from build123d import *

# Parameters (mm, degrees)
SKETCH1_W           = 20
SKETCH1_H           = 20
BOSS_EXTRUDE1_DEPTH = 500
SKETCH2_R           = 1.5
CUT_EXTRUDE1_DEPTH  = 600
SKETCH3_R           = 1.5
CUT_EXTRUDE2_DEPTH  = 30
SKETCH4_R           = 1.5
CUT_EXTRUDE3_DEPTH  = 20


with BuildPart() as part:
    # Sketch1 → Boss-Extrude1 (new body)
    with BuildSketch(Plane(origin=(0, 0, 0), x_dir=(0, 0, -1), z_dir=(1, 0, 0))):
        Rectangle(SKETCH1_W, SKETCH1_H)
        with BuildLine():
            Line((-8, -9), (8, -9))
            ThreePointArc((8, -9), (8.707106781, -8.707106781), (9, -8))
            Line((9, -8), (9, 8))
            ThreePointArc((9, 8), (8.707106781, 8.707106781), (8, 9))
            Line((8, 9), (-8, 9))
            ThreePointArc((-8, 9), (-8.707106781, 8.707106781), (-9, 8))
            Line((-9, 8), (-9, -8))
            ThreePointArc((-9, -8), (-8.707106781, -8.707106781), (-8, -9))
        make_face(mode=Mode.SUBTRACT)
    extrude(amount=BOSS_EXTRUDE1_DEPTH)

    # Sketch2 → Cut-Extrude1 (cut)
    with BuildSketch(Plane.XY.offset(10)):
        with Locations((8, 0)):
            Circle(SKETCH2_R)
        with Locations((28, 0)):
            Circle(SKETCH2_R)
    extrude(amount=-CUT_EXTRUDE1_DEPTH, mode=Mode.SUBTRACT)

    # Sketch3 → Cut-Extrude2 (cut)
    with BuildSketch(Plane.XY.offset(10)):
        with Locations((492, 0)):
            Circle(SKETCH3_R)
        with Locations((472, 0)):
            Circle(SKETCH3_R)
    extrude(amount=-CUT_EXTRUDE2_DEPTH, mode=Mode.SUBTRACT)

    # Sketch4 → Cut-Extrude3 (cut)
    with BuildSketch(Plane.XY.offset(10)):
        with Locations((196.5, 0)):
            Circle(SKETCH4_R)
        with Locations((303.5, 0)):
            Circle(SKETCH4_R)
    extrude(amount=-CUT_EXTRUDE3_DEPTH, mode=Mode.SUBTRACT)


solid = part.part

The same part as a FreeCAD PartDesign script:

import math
import FreeCAD as App
import Part
import Sketcher

V = App.Vector
Q = App.Units.Quantity


def add_polygon(sketch, points):
    """Adds a closed chain of lines whose ends are joined by coincident constraints."""
    first, n = sketch.GeometryCount, len(points)
    for a, b in zip(points, points[1:] + points[:1]):
        sketch.addGeometry(Part.LineSegment(App.Vector(*a, 0), App.Vector(*b, 0)), False)
    for i in range(n):
        sketch.addConstraint(Sketcher.Constraint("Coincident", first + i, 2, first + (i + 1) % n, 1))

doc = App.newDocument("Part")
body = doc.addObject("PartDesign::Body", "Body")

# Sketch on YZ plane
sketch1 = doc.addObject("Sketcher::SketchObject", "Sketch")
body.addObject(sketch1)
sketch1.AttachmentSupport = (doc.YZ_Plane, [""])
sketch1.MapMode = "FlatFace"
add_polygon(sketch1, [(10, 10), (-10, 10), (-10, -10), (10, -10)])  # lines 0-3
sketch1.addGeometry(Part.LineSegment(V(-9, -8, 0), V(-9, 8, 0)), False)  # 4
sketch1.addGeometry(Part.ArcOfCircle(Part.Circle(V(-8, 8, 0), V(0, 0, 1), 1), math.radians(90), math.radians(180)), False)  # 5
sketch1.addGeometry(Part.LineSegment(V(-8, 9, 0), V(8, 9, 0)), False)  # 6
sketch1.addGeometry(Part.ArcOfCircle(Part.Circle(V(8, 8, 0), V(0, 0, 1), 1), math.radians(0), math.radians(90)), False)  # 7
sketch1.addGeometry(Part.LineSegment(V(9, 8, 0), V(9, -8, 0)), False)  # 8
sketch1.addGeometry(Part.ArcOfCircle(Part.Circle(V(8, -8, 0), V(0, 0, 1), 1), math.radians(-90), math.radians(0)), False)  # 9
sketch1.addGeometry(Part.LineSegment(V(8, -9, 0), V(-8, -9, 0)), False)  # 10
sketch1.addGeometry(Part.ArcOfCircle(Part.Circle(V(-8, -8, 0), V(0, 0, 1), 1), math.radians(-180), math.radians(-90)), False)  # 11
sketch1.addConstraint([
    Sketcher.Constraint("Tangent", 4, 2, 5, 2),
    Sketcher.Constraint("Tangent", 5, 1, 6, 1),
    Sketcher.Constraint("Tangent", 6, 2, 7, 2),
    Sketcher.Constraint("Tangent", 7, 1, 8, 1),
    Sketcher.Constraint("Tangent", 8, 2, 9, 2),
    Sketcher.Constraint("Tangent", 9, 1, 10, 1),
    Sketcher.Constraint("Tangent", 10, 2, 11, 2),
    Sketcher.Constraint("Tangent", 11, 1, 4, 1),
    Sketcher.Constraint("Horizontal", 0),
    Sketcher.Constraint("Vertical", 1),
    Sketcher.Constraint("Horizontal", 2),
    Sketcher.Constraint("Vertical", 3),
    Sketcher.Constraint("Vertical", 4),
    Sketcher.Constraint("Horizontal", 6),
    Sketcher.Constraint("Vertical", 8),
    Sketcher.Constraint("Horizontal", 10),
    Sketcher.Constraint("Equal", 5, 7),
    Sketcher.Constraint("Equal", 7, 9),
    Sketcher.Constraint("Equal", 9, 11),
    Sketcher.Constraint("Symmetric", 5, 3, 9, 3, -1, 1),
    Sketcher.Constraint("Symmetric", 0, 2, 2, 2, -1, 1),
    Sketcher.Constraint("Equal", 2, 1),
    Sketcher.Constraint("Equal", 10, 4),
    Sketcher.Constraint("Radius", 5, Q("1 mm")),
    Sketcher.Constraint("DistanceX", 0, 2, 0, 1, Q("20 mm")),
    Sketcher.Constraint("DistanceX", 6, 1, 6, 2, Q("16 mm")),
])
pad1 = doc.addObject("PartDesign::Pad", "Pad")
body.addObject(pad1)
pad1.Profile = sketch1
pad1.Length = 500

# Sketch on XY plane
sketch2 = doc.addObject("Sketcher::SketchObject", "Sketch001")
body.addObject(sketch2)
sketch2.AttachmentSupport = (doc.XY_Plane, [""])
sketch2.MapMode = "FlatFace"
sketch2.AttachmentOffset = App.Placement(V(0, 0, 10), App.Rotation())
sketch2.addGeometry([
    Part.Circle(V(8, 0, 0), V(0, 0, 1), 1.5),
    Part.Circle(V(28, 0, 0), V(0, 0, 1), 1.5),
], False)
sketch2.addConstraint([
    Sketcher.Constraint("Equal", 0, 1),
    Sketcher.Constraint("PointOnObject", 0, 3, -1),
    Sketcher.Constraint("PointOnObject", 1, 3, -1),
    Sketcher.Constraint("Diameter", 0, Q("3 mm")),
    Sketcher.Constraint("DistanceX", -1, 1, 0, 3, Q("8 mm")),
    Sketcher.Constraint("DistanceX", -1, 1, 1, 3, Q("28 mm")),
])
pocket1 = doc.addObject("PartDesign::Pocket", "Pocket")
body.addObject(pocket1)
pocket1.Profile = sketch2
pocket1.Length = 600

# Sketch on XY plane
sketch3 = doc.addObject("Sketcher::SketchObject", "Sketch002")
body.addObject(sketch3)
sketch3.AttachmentSupport = (doc.XY_Plane, [""])
sketch3.MapMode = "FlatFace"
sketch3.AttachmentOffset = App.Placement(V(0, 0, 10), App.Rotation())
sketch3.addGeometry([
    Part.Circle(V(492, 0, 0), V(0, 0, 1), 1.5),
    Part.Circle(V(472, 0, 0), V(0, 0, 1), 1.5),
], False)
sketch3.addConstraint([
    Sketcher.Constraint("Equal", 0, 1),
    Sketcher.Constraint("PointOnObject", 0, 3, -1),
    Sketcher.Constraint("PointOnObject", 1, 3, -1),
    Sketcher.Constraint("Diameter", 0, Q("3 mm")),
    Sketcher.Constraint("DistanceX", -1, 1, 0, 3, Q("492 mm")),
    Sketcher.Constraint("DistanceX", -1, 1, 1, 3, Q("472 mm")),
])
pocket2 = doc.addObject("PartDesign::Pocket", "Pocket001")
body.addObject(pocket2)
pocket2.Profile = sketch3
pocket2.Length = 30

# Sketch on XY plane
sketch4 = doc.addObject("Sketcher::SketchObject", "Sketch003")
body.addObject(sketch4)
sketch4.AttachmentSupport = (doc.XY_Plane, [""])
sketch4.MapMode = "FlatFace"
sketch4.AttachmentOffset = App.Placement(V(0, 0, 10), App.Rotation())
sketch4.addGeometry([
    Part.Circle(V(196.5, 0, 0), V(0, 0, 1), 1.5),
    Part.Circle(V(303.5, 0, 0), V(0, 0, 1), 1.5),
], False)
sketch4.addConstraint([
    Sketcher.Constraint("Equal", 0, 1),
    Sketcher.Constraint("PointOnObject", 0, 3, -1),
    Sketcher.Constraint("PointOnObject", 1, 3, -1),
    Sketcher.Constraint("Diameter", 0, Q("3 mm")),
    Sketcher.Constraint("DistanceX", 0, 3, 1, 3, Q("107 mm")),
    Sketcher.Constraint("DistanceX", -1, 1, 0, 3, Q("196.5 mm")),
])
pocket3 = doc.addObject("PartDesign::Pocket", "Pocket002")
body.addObject(pocket3)
pocket3.Profile = sketch4
pocket3.Length = 20

doc.recompute()
